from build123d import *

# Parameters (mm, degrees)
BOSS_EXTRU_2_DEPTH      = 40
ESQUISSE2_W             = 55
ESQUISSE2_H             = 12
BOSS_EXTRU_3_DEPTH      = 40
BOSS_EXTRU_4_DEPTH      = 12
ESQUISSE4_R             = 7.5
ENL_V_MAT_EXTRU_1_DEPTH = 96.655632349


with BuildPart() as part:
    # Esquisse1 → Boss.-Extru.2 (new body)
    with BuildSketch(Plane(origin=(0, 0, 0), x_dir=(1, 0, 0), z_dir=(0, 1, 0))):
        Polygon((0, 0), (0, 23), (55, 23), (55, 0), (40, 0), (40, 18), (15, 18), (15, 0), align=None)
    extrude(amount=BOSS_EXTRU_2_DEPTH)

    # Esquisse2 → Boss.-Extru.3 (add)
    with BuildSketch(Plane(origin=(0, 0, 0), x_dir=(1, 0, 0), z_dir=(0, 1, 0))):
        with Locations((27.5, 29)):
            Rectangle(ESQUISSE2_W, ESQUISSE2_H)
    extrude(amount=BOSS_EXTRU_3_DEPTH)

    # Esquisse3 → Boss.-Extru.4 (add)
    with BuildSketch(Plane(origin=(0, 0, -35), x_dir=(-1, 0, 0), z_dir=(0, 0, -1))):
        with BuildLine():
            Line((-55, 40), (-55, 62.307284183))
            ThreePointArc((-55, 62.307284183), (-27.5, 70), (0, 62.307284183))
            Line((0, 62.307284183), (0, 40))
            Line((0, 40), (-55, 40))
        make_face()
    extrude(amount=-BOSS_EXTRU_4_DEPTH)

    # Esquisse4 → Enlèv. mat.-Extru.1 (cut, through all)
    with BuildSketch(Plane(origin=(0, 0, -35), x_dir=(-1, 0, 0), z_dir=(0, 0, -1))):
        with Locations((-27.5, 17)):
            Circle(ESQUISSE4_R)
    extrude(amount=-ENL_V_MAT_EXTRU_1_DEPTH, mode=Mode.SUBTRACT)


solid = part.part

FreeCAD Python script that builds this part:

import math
import FreeCAD as App
import Part
import Sketcher

V = App.Vector
Q = App.Units.Quantity


def add_polygon(sketch, points):
    """Adds a closed chain of lines whose ends are joined by coincident constraints."""
    first, n = sketch.GeometryCount, len(points)
    for a, b in zip(points, points[1:] + points[:1]):
        sketch.addGeometry(Part.LineSegment(App.Vector(*a, 0), App.Vector(*b, 0)), False)
    for i in range(n):
        sketch.addConstraint(Sketcher.Constraint("Coincident", first + i, 2, first + (i + 1) % n, 1))

doc = App.newDocument("Part")
body = doc.addObject("PartDesign::Body", "Body")

# Sketch on XZ plane
sketch1 = body.newObject("Sketcher::SketchObject", "Sketch")
sketch1.AttachmentSupport = (doc.getObject("XZ_Plane"), [""])
sketch1.MapMode = "FlatFace"
add_polygon(sketch1, [(0, -23), (0, 0), (15, 0), (15, -18), (40, -18), (40, 0), (55, 0), (55, -23)])  # lines 0-7
sketch1.addConstraint([
    Sketcher.Constraint("Vertical", 0),
    Sketcher.Constraint("Horizontal", 1),
    Sketcher.Constraint("Vertical", 2),
    Sketcher.Constraint("Horizontal", 3),
    Sketcher.Constraint("Vertical", 4),
    Sketcher.Constraint("Horizontal", 5),
    Sketcher.Constraint("Vertical", 6),
    Sketcher.Constraint("Horizontal", 7),
    Sketcher.Constraint("Coincident", 0, 2, -1, 1),
    Sketcher.Constraint("PointOnObject", 4, 2, -1),
    Sketcher.Constraint("Equal", 1, 5),
    Sketcher.Constraint("DistanceX", 1, 1, 1, 2, Q("15 mm")),
    Sketcher.Constraint("DistanceX", 3, 1, 3, 2, Q("25 mm")),
    Sketcher.Constraint("DistanceY", 0, 1, 0, 2, Q("23 mm")),
    Sketcher.Constraint("DistanceY", 2, 2, 2, 1, Q("18 mm")),
])
pad1 = body.newObject("PartDesign::Pad", "Pad")
pad1.Profile = sketch1
pad1.Length = 40
pad1.Reversed = True

# Sketch on XZ plane
sketch2 = body.newObject("Sketcher::SketchObject", "Sketch001")
sketch2.AttachmentSupport = (doc.getObject("XZ_Plane"), [""])
sketch2.MapMode = "FlatFace"
add_polygon(sketch2, [(0, -35), (0, -23), (55, -23), (55, -35)])  # lines 0-3
sketch2.addConstraint([
    Sketcher.Constraint("Vertical", 0),
    Sketcher.Constraint("Horizontal", 1),
    Sketcher.Constraint("Vertical", 2),
    Sketcher.Constraint("Horizontal", 3),
    Sketcher.Constraint("PointOnObject", 0, 2, -2),
    Sketcher.Constraint("DistanceX", 1, 1, 1, 2, Q("55 mm")),
    Sketcher.Constraint("DistanceY", 0, 1, 0, 2, Q("12 mm")),
    Sketcher.Constraint("DistanceY", 0, 2, -1, 1, Q("23 mm")),
])
pad2 = body.newObject("PartDesign::Pad", "Pad001")
pad2.Profile = sketch2
pad2.Length = 40
pad2.Reversed = True

# Sketch on XY plane
sketch3 = body.newObject("Sketcher::SketchObject", "Sketch002")
sketch3.AttachmentSupport = (doc.getObject("XY_Plane"), [""])
sketch3.MapMode = "FlatFace"
sketch3.AttachmentOffset = App.Placement(V(0, 0, -35), App.Rotation())
sketch3.addGeometry([
    Part.LineSegment(V(55, 62, 0), V(55, 40, 0)),
    Part.LineSegment(V(55, 40, 0), V(0, 40, 0)),
    Part.LineSegment(V(0, 40, 0), V(0, 62, 0)),
    Part.ArcOfCircle(Part.Circle(V(28, 17, 0), V(0, 0, 1), 53), math.radians(59), math.radians(121)),
], False)
sketch3.addConstraint([
    Sketcher.Constraint("Coincident", 0, 2, 1, 1),
    Sketcher.Constraint("Coincident", 1, 2, 2, 1),
    Sketcher.Constraint("Coincident", 2, 2, 3, 2),
    Sketcher.Constraint("Coincident", 3, 1, 0, 1),
    Sketcher.Constraint("Vertical", 0),
    Sketcher.Constraint("Horizontal", 1),
    Sketcher.Constraint("Vertical", 2),
    Sketcher.Constraint("PointOnObject", 1, 2, -2),
    Sketcher.Constraint("Horizontal", 2, 2, 3, 1),
    Sketcher.Constraint("Radius", 3, Q("53 mm")),
    Sketcher.Constraint("DistanceX", 1, 2, 1, 1, Q("55 mm")),
    Sketcher.Constraint("DistanceY", -1, 1, 3, 3, Q("17 mm")),
    Sketcher.Constraint("DistanceY", -1, 1, 0, 2, Q("40 mm")),
])
pad3 = body.newObject("PartDesign::Pad", "Pad002")
pad3.Profile = sketch3
pad3.Length = 12

# Sketch on XY plane
sketch4 = body.newObject("Sketcher::SketchObject", "Sketch003")
sketch4.AttachmentSupport = (doc.getObject("XY_Plane"), [""])
sketch4.MapMode = "FlatFace"
sketch4.AttachmentOffset = App.Placement(V(0, 0, -35), App.Rotation())
sketch4.addGeometry(Part.Circle(V(28, 17, 0), V(0, 0, 1), 8), False)
sketch4.addConstraint([
    Sketcher.Constraint("Diameter", 0, Q("15 mm")),
    Sketcher.Constraint("DistanceY", -1, 1, 0, 3, Q("17 mm")),
    Sketcher.Constraint("DistanceX", -1, 1, 0, 3, Q("27.5 mm")),
])
pocket1 = body.newObject("PartDesign::Pocket", "Pocket")
pocket1.Profile = sketch4
pocket1.Type = "ThroughAll"
pocket1.Reversed = True

doc.recompute()
